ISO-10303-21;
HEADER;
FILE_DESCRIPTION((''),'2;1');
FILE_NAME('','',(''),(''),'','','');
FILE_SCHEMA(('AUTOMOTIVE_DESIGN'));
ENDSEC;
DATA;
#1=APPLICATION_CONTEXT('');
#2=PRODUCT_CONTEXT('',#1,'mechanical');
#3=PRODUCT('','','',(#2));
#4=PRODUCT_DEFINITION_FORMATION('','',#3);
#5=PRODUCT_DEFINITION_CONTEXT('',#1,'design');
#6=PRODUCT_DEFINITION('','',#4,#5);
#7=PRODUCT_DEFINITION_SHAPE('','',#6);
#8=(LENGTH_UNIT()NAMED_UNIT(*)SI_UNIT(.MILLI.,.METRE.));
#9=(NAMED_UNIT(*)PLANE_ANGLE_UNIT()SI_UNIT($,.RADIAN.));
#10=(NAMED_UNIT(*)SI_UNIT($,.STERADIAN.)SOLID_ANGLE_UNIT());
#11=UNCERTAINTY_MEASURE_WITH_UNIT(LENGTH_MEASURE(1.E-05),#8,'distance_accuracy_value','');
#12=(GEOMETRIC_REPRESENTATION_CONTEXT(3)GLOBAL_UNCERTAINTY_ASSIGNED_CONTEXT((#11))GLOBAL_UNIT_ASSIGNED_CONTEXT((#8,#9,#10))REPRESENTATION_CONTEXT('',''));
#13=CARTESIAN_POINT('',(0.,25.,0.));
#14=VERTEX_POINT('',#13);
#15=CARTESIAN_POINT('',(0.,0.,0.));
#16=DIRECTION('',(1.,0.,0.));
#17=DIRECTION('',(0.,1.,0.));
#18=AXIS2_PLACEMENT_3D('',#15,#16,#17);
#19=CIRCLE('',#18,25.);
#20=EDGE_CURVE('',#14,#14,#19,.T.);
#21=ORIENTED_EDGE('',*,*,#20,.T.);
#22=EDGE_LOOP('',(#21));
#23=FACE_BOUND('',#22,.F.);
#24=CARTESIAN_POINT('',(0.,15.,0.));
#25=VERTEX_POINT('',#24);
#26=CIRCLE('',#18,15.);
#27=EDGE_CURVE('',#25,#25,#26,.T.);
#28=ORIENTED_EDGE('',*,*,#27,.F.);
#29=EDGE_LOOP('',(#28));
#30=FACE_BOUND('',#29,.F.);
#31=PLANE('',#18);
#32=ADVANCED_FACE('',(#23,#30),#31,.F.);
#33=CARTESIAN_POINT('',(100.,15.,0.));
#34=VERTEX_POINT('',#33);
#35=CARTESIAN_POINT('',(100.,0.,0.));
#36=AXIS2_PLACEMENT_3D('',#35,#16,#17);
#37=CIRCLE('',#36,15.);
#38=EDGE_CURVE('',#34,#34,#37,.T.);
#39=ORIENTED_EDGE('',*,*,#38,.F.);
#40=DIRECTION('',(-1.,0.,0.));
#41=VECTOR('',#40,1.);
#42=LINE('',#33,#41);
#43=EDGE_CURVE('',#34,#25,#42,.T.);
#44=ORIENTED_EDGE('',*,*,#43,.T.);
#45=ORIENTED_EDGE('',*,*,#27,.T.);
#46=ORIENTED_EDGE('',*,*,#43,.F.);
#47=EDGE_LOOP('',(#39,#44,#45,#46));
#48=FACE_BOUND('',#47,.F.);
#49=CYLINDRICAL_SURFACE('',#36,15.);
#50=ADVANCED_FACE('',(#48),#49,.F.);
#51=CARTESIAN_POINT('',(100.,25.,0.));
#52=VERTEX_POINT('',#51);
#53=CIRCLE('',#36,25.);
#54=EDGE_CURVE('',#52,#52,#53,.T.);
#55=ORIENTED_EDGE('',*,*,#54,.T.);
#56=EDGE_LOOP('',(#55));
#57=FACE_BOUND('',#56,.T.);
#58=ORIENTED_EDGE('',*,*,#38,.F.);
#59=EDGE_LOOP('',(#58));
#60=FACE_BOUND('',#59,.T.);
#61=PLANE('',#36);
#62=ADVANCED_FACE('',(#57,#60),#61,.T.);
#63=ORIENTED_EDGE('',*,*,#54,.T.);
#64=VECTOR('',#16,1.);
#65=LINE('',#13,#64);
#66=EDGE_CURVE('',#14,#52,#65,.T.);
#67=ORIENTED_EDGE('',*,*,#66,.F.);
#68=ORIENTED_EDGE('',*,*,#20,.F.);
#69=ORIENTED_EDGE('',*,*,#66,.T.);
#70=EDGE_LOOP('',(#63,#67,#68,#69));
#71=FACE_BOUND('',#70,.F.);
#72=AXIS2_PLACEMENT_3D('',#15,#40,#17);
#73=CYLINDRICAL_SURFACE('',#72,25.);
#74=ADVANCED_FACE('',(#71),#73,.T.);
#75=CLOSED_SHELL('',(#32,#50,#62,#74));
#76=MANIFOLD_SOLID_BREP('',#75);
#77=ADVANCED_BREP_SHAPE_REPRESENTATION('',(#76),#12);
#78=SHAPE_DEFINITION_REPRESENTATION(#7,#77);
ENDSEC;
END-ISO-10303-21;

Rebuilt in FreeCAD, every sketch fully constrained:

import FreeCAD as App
import Part
import Sketcher

V = App.Vector

doc = App.newDocument("Part")
body = doc.addObject("PartDesign::Body", "Body")

sketch1 = body.newObject("Sketcher::SketchObject", "Sketch")
sketch1.AttachmentSupport = (doc.getObject("YZ_Plane"), [""])
sketch1.MapMode = "FlatFace"
sketch1.addGeometry(Part.Circle(V(0, 0, 0), V(0, 0, 1), 25), False)
sketch1.addConstraint([
    Sketcher.Constraint("Coincident", 0, 3, -1, 1),
    Sketcher.Constraint("Diameter", 0, 50.0),
])
pad1 = body.newObject("PartDesign::Pad", "Pad")
pad1.Profile = sketch1
pad1.Length = 100

sketch2 = body.newObject("Sketcher::SketchObject", "Sketch001")
sketch2.AttachmentSupport = (doc.getObject("YZ_Plane"), [""])
sketch2.MapMode = "FlatFace"
sketch2.AttachmentOffset = App.Placement(V(0, 0, 100), App.Rotation())
sketch2.addGeometry(Part.Circle(V(0, 0, 0), V(0, 0, 1), 15), False)
sketch2.addConstraint([
    Sketcher.Constraint("Coincident", 0, 3, -1, 1),
    Sketcher.Constraint("Diameter", 0, 30.0),
])
pocket1 = body.newObject("PartDesign::Pocket", "Pocket")
pocket1.Profile = sketch2
pocket1.Type = "ThroughAll"

doc.recompute()
